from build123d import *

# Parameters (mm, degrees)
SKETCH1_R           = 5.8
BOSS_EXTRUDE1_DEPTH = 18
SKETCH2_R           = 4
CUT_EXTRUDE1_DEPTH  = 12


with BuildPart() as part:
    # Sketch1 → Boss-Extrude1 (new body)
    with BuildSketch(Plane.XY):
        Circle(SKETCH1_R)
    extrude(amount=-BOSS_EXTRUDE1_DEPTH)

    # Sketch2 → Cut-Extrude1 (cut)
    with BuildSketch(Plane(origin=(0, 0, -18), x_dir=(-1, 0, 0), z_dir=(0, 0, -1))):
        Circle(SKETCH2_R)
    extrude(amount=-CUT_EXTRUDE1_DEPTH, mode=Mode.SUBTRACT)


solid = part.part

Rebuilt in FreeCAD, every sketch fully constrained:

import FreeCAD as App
import Part
import Sketcher

V = App.Vector

doc = App.newDocument("Part")
body = doc.addObject("PartDesign::Body", "Body")

sketch1 = doc.addObject("Sketcher::SketchObject", "Sketch")
body.addObject(sketch1)
sketch1.AttachmentSupport = (doc.XY_Plane, [""])
sketch1.MapMode = "FlatFace"
sketch1.addGeometry(Part.Circle(V(0, 0, 0), V(0, 0, 1), 6), False)
sketch1.addConstraint([
    Sketcher.Constraint("Coincident", 0, 3, -1, 1),
    Sketcher.Constraint("Diameter", 0, 11.6),
])
pad1 = doc.addObject("PartDesign::Pad", "Pad")
body.addObject(pad1)
pad1.Profile = sketch1
pad1.Length = 18
pad1.Reversed = True

sketch2 = doc.addObject("Sketcher::SketchObject", "Sketch001")
body.addObject(sketch2)
sketch2.AttachmentSupport = (doc.XY_Plane, [""])
sketch2.MapMode = "FlatFace"
sketch2.AttachmentOffset = App.Placement(V(0, 0, -18), App.Rotation())
sketch2.addGeometry(Part.Circle(V(0, 0, 0), V(0, 0, 1), 4), False)
sketch2.addConstraint([
    Sketcher.Constraint("Coincident", 0, 3, -1, 1),
    Sketcher.Constraint("Diameter", 0, 8.0),
])
pocket1 = doc.addObject("PartDesign::Pocket", "Pocket")
body.addObject(pocket1)
pocket1.Profile = sketch2
pocket1.Length = 12
pocket1.Reversed = True

doc.recompute()
